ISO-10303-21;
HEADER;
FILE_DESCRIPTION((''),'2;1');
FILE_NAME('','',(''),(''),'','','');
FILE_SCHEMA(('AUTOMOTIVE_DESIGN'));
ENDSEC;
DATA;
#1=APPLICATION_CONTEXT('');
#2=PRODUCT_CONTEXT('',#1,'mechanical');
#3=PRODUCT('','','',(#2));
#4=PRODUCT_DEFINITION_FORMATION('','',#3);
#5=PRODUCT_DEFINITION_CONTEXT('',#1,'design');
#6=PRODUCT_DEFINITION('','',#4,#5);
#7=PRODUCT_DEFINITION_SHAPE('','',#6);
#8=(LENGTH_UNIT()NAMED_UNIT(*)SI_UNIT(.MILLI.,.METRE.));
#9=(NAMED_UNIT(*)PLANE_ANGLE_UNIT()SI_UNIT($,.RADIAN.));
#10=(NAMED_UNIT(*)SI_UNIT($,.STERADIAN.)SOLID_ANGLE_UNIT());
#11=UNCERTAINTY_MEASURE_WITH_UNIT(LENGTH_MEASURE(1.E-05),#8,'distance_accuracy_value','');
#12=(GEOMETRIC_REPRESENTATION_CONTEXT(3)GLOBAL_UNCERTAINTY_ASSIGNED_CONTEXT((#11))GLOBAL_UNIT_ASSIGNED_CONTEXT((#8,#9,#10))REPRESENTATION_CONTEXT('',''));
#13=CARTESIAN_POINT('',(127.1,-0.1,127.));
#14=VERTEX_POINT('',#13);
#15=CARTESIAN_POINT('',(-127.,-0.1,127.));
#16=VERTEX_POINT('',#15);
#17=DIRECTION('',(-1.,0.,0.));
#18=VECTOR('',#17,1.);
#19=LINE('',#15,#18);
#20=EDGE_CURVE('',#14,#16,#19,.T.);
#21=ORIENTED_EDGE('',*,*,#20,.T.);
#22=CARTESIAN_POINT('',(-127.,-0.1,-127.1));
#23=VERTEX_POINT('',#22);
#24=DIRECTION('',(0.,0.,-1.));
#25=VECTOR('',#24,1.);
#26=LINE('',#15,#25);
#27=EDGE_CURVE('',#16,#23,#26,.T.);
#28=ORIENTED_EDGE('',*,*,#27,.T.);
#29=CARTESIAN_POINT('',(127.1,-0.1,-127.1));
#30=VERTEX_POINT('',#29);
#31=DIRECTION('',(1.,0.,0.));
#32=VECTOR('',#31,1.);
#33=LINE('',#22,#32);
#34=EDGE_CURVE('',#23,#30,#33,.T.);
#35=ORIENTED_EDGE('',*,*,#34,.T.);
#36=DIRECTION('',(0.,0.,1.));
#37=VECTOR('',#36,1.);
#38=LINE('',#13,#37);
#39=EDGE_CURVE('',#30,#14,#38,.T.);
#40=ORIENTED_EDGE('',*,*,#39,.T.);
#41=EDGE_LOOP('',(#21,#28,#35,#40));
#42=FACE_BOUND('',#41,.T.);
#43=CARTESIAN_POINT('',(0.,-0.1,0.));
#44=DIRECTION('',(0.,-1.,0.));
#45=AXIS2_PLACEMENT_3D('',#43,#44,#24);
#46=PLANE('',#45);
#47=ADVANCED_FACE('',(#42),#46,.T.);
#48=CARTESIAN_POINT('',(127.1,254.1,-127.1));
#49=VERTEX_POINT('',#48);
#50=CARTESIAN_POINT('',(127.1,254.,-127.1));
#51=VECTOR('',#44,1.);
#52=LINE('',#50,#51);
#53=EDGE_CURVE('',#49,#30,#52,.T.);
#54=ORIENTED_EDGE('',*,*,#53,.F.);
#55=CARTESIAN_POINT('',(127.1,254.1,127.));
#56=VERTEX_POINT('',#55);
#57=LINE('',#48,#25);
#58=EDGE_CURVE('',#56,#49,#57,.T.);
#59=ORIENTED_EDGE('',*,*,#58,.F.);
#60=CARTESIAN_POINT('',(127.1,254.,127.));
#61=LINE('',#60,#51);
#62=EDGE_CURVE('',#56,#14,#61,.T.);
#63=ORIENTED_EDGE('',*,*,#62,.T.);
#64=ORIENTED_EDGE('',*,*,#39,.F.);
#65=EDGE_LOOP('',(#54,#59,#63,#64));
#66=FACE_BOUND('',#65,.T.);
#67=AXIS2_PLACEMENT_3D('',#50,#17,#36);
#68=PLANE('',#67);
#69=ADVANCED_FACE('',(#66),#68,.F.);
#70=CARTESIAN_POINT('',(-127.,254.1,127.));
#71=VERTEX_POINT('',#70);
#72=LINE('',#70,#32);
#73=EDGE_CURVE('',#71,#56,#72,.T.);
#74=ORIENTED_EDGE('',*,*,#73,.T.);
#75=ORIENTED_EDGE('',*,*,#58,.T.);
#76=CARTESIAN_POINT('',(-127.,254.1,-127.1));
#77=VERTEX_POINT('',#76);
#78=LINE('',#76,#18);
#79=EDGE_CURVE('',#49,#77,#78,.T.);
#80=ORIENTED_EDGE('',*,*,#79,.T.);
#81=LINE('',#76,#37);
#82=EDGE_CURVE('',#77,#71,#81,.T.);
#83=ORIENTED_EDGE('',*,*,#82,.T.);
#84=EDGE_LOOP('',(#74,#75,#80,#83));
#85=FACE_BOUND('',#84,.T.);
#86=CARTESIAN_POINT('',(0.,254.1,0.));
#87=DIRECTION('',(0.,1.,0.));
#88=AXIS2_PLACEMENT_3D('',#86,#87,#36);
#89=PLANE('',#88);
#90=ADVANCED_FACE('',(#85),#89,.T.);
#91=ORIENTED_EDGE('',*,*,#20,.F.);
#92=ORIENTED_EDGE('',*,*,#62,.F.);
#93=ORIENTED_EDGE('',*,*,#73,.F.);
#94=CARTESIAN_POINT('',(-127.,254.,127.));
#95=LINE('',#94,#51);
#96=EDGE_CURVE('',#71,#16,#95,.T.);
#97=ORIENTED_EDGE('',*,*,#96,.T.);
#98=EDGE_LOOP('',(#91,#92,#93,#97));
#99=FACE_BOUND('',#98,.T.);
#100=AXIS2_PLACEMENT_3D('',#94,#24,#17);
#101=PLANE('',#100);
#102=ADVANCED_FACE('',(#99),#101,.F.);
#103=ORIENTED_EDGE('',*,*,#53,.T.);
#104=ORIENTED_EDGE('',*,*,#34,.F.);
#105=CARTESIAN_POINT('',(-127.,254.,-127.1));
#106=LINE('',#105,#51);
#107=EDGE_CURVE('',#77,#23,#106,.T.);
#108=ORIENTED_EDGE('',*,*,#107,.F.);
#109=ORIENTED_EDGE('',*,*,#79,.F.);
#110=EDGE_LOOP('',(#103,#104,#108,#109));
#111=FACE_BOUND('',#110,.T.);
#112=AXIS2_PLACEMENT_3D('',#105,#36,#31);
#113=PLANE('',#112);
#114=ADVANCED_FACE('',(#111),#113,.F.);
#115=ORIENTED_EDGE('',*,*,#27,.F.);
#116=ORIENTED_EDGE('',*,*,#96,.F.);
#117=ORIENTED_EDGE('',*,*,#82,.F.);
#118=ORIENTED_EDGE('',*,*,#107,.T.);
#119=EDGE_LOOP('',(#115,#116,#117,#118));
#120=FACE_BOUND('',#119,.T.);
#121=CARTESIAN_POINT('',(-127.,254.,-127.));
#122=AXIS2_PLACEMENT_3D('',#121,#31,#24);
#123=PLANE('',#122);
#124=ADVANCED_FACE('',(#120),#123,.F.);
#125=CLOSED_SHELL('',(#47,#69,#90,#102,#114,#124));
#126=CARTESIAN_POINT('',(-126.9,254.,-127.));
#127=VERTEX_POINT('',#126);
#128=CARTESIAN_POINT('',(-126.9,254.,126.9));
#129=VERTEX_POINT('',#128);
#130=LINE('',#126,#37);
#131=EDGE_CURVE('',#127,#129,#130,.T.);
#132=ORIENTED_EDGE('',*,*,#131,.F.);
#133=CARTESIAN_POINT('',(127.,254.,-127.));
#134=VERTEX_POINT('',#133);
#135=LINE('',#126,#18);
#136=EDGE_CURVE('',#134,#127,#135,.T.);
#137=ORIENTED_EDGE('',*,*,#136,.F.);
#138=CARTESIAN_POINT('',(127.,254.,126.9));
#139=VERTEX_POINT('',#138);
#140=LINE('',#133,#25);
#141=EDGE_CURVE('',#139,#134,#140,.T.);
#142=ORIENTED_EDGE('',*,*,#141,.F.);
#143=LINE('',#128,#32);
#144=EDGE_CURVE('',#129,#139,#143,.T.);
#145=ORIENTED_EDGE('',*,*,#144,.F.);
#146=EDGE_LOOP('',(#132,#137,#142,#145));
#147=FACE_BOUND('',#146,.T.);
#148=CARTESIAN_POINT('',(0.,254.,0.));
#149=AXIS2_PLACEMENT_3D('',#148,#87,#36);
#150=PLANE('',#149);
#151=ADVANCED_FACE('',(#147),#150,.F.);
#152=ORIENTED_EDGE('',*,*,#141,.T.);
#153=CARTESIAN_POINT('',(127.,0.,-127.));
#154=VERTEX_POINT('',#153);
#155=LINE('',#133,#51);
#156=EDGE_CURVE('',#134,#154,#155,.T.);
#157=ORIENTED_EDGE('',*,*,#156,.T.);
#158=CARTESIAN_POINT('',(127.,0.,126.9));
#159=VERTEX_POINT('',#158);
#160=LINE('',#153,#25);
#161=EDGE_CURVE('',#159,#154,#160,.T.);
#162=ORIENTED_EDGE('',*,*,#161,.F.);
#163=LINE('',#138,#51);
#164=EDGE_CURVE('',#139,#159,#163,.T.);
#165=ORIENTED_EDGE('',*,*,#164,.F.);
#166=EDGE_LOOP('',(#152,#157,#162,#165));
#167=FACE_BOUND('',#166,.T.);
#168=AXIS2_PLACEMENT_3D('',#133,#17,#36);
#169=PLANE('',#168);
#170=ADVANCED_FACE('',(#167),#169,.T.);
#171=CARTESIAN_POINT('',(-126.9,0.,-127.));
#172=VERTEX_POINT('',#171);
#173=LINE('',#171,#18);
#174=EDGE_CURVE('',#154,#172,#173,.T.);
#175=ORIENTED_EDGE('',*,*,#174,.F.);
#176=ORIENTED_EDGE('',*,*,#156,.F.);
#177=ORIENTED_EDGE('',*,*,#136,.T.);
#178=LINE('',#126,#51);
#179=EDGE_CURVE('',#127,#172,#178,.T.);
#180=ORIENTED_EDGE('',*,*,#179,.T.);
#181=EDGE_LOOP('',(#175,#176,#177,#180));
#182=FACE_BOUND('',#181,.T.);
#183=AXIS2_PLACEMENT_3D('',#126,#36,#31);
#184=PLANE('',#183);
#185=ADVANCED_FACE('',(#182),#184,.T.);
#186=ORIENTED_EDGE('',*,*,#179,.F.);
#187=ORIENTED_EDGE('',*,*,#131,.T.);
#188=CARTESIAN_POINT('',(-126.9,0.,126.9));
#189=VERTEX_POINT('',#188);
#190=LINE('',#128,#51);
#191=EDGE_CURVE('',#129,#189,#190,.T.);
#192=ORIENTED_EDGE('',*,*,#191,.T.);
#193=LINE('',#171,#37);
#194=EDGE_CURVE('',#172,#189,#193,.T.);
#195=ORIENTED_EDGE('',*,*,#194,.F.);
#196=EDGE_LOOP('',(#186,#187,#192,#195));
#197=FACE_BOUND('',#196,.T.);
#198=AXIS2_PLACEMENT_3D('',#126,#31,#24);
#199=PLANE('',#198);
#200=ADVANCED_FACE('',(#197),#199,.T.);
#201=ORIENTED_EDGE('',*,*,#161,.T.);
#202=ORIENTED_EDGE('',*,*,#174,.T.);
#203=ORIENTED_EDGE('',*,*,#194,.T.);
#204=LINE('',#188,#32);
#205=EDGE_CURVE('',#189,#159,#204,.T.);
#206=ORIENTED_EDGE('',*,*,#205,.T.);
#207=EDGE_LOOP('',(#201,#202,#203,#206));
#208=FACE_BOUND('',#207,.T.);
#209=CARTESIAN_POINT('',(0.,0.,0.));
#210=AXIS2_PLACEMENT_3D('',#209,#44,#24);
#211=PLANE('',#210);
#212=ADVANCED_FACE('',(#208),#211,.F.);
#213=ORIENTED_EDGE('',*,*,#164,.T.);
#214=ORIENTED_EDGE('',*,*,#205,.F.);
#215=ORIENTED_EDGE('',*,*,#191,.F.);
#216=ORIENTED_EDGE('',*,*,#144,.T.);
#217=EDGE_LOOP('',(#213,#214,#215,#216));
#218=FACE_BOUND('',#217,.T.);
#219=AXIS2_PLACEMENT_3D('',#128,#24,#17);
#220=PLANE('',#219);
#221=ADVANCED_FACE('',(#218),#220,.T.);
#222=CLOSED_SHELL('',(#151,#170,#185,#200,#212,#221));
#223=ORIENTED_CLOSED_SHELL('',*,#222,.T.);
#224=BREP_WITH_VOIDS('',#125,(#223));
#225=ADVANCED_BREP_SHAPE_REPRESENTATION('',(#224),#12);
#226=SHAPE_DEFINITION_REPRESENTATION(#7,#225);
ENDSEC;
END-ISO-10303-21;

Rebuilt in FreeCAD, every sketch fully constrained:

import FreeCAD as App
import Part
import Sketcher
from FreeCAD import Vector


def add_polygon(sketch, points):
    """Adds a closed chain of lines whose ends are joined by coincident constraints."""
    first, n = sketch.GeometryCount, len(points)
    for a, b in zip(points, points[1:] + points[:1]):
        sketch.addGeometry(Part.LineSegment(App.Vector(*a, 0), App.Vector(*b, 0)), False)
    for i in range(n):
        sketch.addConstraint(Sketcher.Constraint("Coincident", first + i, 2, first + (i + 1) % n, 1))

doc = App.newDocument("Part")
body = doc.addObject("PartDesign::Body", "Body")

# Sketch on XZ plane
sketch1 = doc.addObject("Sketcher::SketchObject", "Sketch")
body.addObject(sketch1)
sketch1.AttachmentSupport = (doc.XZ_Plane, [""])
sketch1.MapMode = "FlatFace"
add_polygon(sketch1, [(127.1, -127.1), (-127, -127.1), (-127, 127), (127.1, 127)])  # lines 0-3
add_polygon(sketch1, [(-126.9, 126.9), (-126.9, -127), (127, -127), (127, 126.9)])  # lines 4-7
sketch1.addConstraint([
    Sketcher.Constraint("Horizontal", 0),
    Sketcher.Constraint("Vertical", 1),
    Sketcher.Constraint("Horizontal", 2),
    Sketcher.Constraint("Vertical", 3),
    Sketcher.Constraint("Vertical", 4),
    Sketcher.Constraint("Horizontal", 5),
    Sketcher.Constraint("Vertical", 6),
    Sketcher.Constraint("Horizontal", 7),
    Sketcher.Constraint("Symmetric", 1, 2, 5, 2, -1, 1),
    Sketcher.Constraint("Equal", 2, 1),
    Sketcher.Constraint("Equal", 7, 4),
    Sketcher.Constraint("DistanceX", 0, 2, 0, 1, 254.1),
    Sketcher.Constraint("DistanceX", 5, 1, 5, 2, 253.9),
    Sketcher.Constraint("DistanceX", 0, 2, -1, 1, 127.0),
    Sketcher.Constraint("DistanceY", -1, 1, 1, 2, 127.0),
])
pad1 = doc.addObject("PartDesign::Pad", "Pad")
body.addObject(pad1)
pad1.Profile = sketch1
pad1.Length = 254
pad1.Reversed = True

# Sketch on XZ plane
sketch2 = doc.addObject("Sketcher::SketchObject", "Sketch001")
body.addObject(sketch2)
sketch2.AttachmentSupport = (doc.XZ_Plane, [""])
sketch2.MapMode = "FlatFace"
sketch2.AttachmentOffset = App.Placement(Vector(0, 0, -254), App.Rotation())
add_polygon(sketch2, [(-127, -127.1), (-127, 127), (127.1, 127), (127.1, -127.1)])  # lines 0-3
sketch2.addConstraint([
    Sketcher.Constraint("Vertical", 0),
    Sketcher.Constraint("Horizontal", 1),
    Sketcher.Constraint("Vertical", 2),
    Sketcher.Constraint("Horizontal", 3),
    Sketcher.Constraint("Equal", 3, 0),
    Sketcher.Constraint("DistanceX", 1, 1, 1, 2, 254.1),
    Sketcher.Constraint("DistanceX", 0, 2, -1, 1, 127.0),
    Sketcher.Constraint("DistanceY", -1, 1, 0, 2, 127.0),
])
pad2 = doc.addObject("PartDesign::Pad", "Pad001")
body.addObject(pad2)
pad2.Profile = sketch2
pad2.Length = 0.1
pad2.Reversed = True

# Sketch on XZ plane
sketch3 = doc.addObject("Sketcher::SketchObject", "Sketch002")
body.addObject(sketch3)
sketch3.AttachmentSupport = (doc.XZ_Plane, [""])
sketch3.MapMode = "FlatFace"
add_polygon(sketch3, [(-127, 127), (-127, -127.1), (127.1, -127.1), (127.1, 127)])  # lines 0-3
sketch3.addConstraint([
    Sketcher.Constraint("Vertical", 0),
    Sketcher.Constraint("Horizontal", 1),
    Sketcher.Constraint("Vertical", 2),
    Sketcher.Constraint("Horizontal", 3),
    Sketcher.Constraint("Equal", 3, 0),
    Sketcher.Constraint("DistanceX", 1, 1, 1, 2, 254.1),
    Sketcher.Constraint("DistanceX", 0, 2, -1, 1, 127.0),
    Sketcher.Constraint("DistanceY", -1, 1, 2, 2, 127.0),
])
pad3 = doc.addObject("PartDesign::Pad", "Pad002")
body.addObject(pad3)
pad3.Profile = sketch3
pad3.Length = 0.1

doc.recompute()
